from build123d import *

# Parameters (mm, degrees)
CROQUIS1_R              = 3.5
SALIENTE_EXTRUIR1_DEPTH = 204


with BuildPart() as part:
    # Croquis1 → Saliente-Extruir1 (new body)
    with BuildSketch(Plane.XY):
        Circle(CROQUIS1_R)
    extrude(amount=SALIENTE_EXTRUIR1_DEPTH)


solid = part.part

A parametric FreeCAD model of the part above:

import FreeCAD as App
import Part
import Sketcher
Q = App.Units.Quantity

doc = App.newDocument("Part")
body = doc.addObject("PartDesign::Body", "Body")

# Sketch on XY plane
sketch1 = body.newObject("Sketcher::SketchObject", "Sketch")
sketch1.AttachmentSupport = (doc.getObject("XY_Plane"), [""])
sketch1.MapMode = "FlatFace"
sketch1.addGeometry(Part.Circle(App.Vector(0, 0, 0), App.Vector(0, 0, 1), 3.5), False)
sketch1.addConstraint(Sketcher.Constraint("Coincident", 0, 3, -1, 1))
sketch1.addConstraint(Sketcher.Constraint("Diameter", 0, Q("7 mm")))
pad1 = body.newObject("PartDesign::Pad", "Pad")
pad1.Profile = sketch1
pad1.Length = 204

doc.recompute()
